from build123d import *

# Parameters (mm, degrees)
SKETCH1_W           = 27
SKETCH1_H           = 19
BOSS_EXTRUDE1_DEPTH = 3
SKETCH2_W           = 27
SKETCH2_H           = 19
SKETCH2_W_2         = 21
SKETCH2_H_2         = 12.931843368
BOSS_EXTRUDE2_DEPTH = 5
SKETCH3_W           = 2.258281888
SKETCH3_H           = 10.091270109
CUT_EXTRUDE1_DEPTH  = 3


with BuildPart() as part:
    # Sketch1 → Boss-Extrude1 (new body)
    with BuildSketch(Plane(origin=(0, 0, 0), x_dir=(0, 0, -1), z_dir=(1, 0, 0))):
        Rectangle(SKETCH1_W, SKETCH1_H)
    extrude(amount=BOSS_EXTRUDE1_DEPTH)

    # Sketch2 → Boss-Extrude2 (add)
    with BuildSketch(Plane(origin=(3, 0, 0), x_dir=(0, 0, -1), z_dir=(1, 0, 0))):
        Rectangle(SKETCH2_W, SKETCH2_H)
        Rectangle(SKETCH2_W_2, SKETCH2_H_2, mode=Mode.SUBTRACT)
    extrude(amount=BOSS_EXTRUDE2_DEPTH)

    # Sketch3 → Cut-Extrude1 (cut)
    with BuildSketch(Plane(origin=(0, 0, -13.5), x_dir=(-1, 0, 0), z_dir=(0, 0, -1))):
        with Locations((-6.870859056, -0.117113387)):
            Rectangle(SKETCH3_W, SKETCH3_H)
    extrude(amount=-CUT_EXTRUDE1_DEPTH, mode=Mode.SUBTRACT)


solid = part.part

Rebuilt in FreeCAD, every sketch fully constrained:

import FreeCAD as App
import Part
import Sketcher
from FreeCAD import Vector


def add_polygon(sketch, points):
    """Adds a closed chain of lines whose ends are joined by coincident constraints."""
    first, n = sketch.GeometryCount, len(points)
    for a, b in zip(points, points[1:] + points[:1]):
        sketch.addGeometry(Part.LineSegment(App.Vector(*a, 0), App.Vector(*b, 0)), False)
    for i in range(n):
        sketch.addConstraint(Sketcher.Constraint("Coincident", first + i, 2, first + (i + 1) % n, 1))

doc = App.newDocument("Part")
params = doc.addObject("Spreadsheet::Sheet", "Params")
for row, (alias, value) in enumerate([
    ("sketch1_width", "19 mm"),
    ("sketch1_height", "27 mm"),
    ("pad1_length", "3 mm"),
    ("sketch2_width", "19 mm"),
    ("sketch2_height", "27 mm"),
    ("sketch2_height2", "21 mm"),
    ("pad2_length", "5 mm"),
    ("pocket1_length", "3 mm"),
], start=1):
    params.set(f"A{row}", alias)
    params.set(f"B{row}", "=" + value)
    params.setAlias(f"B{row}", alias)

body = doc.addObject("PartDesign::Body", "Body")

# Sketch on YZ plane
sketch1 = body.newObject("Sketcher::SketchObject", "Sketch")
sketch1.AttachmentSupport = (doc.getObject("YZ_Plane"), [""])
sketch1.MapMode = "FlatFace"
add_polygon(sketch1, [(9.5, 13.5), (-9.5, 13.5), (-9.5, -13.5), (9.5, -13.5)])  # lines 0-3
sketch1.addConstraint([
    Sketcher.Constraint("Horizontal", 0),
    Sketcher.Constraint("Vertical", 1),
    Sketcher.Constraint("Horizontal", 2),
    Sketcher.Constraint("Vertical", 3),
    Sketcher.Constraint("Symmetric", 0, 2, 2, 2, -1, 1),
    Sketcher.Constraint("DistanceX", 0, 2, 0, 1, 19.0),
    Sketcher.Constraint("DistanceY", 1, 2, 1, 1, 27.0),
])
sketch1.setExpression("Constraints[9]", "Params.sketch1_width")
sketch1.setExpression("Constraints[10]", "Params.sketch1_height")
pad1 = body.newObject("PartDesign::Pad", "Pad")
pad1.Profile = sketch1
pad1.setExpression("Length", "Params.pad1_length")

# Sketch on YZ plane
sketch2 = body.newObject("Sketcher::SketchObject", "Sketch001")
sketch2.AttachmentSupport = (doc.getObject("YZ_Plane"), [""])
sketch2.MapMode = "FlatFace"
sketch2.AttachmentOffset = App.Placement(Vector(0, 0, 3), App.Rotation())
add_polygon(sketch2, [(9.5, 13.5), (-9.5, 13.5), (-9.5, -13.5), (9.5, -13.5)])  # lines 0-3
add_polygon(sketch2, [(-6.465922, -10.5), (-6.465922, 10.5), (6.465922, 10.5), (6.465922, -10.5)])  # lines 4-7
sketch2.addConstraint([
    Sketcher.Constraint("Horizontal", 0),
    Sketcher.Constraint("Vertical", 1),
    Sketcher.Constraint("Horizontal", 2),
    Sketcher.Constraint("Vertical", 3),
    Sketcher.Constraint("Vertical", 4),
    Sketcher.Constraint("Horizontal", 5),
    Sketcher.Constraint("Vertical", 6),
    Sketcher.Constraint("Horizontal", 7),
    Sketcher.Constraint("Symmetric", 0, 2, 2, 2, -1, 1),
    Sketcher.Constraint("Symmetric", 4, 2, 6, 2, -1, 1),
    Sketcher.Constraint("DistanceX", 0, 2, 0, 1, 19.0),
    Sketcher.Constraint("DistanceY", 1, 2, 1, 1, 27.0),
    Sketcher.Constraint("DistanceY", 4, 1, 4, 2, 21.0),
    Sketcher.Constraint("DistanceX", 5, 1, 5, 2, 12.931843),
])
sketch2.setExpression("Constraints[18]", "Params.sketch2_width")
sketch2.setExpression("Constraints[19]", "Params.sketch2_height")
sketch2.setExpression("Constraints[20]", "Params.sketch2_height2")
pad2 = body.newObject("PartDesign::Pad", "Pad001")
pad2.Profile = sketch2
pad2.setExpression("Length", "Params.pad2_length")

# Sketch on XY plane
sketch3 = body.newObject("Sketcher::SketchObject", "Sketch002")
sketch3.AttachmentSupport = (doc.getObject("XY_Plane"), [""])
sketch3.MapMode = "FlatFace"
sketch3.AttachmentOffset = App.Placement(Vector(0, 0, -13.5), App.Rotation())
add_polygon(sketch3, [(8, 4.928522), (8, -5.162748), (5.741718, -5.162748), (5.741718, 4.928522)])  # lines 0-3
sketch3.addConstraint([
    Sketcher.Constraint("Vertical", 0),
    Sketcher.Constraint("Horizontal", 1),
    Sketcher.Constraint("Vertical", 2),
    Sketcher.Constraint("Horizontal", 3),
    Sketcher.Constraint("DistanceX", -1, 1, 0, 2, 8.0),
    Sketcher.Constraint("DistanceX", 1, 2, 1, 1, 2.258282),
    Sketcher.Constraint("DistanceY", 0, 2, 0, 1, 10.09127),
    Sketcher.Constraint("DistanceY", 0, 2, -1, 1, 5.162748),
])
pocket1 = body.newObject("PartDesign::Pocket", "Pocket")
pocket1.Profile = sketch3
pocket1.setExpression("Length", "Params.pocket1_length")
pocket1.Reversed = True

doc.recompute()
